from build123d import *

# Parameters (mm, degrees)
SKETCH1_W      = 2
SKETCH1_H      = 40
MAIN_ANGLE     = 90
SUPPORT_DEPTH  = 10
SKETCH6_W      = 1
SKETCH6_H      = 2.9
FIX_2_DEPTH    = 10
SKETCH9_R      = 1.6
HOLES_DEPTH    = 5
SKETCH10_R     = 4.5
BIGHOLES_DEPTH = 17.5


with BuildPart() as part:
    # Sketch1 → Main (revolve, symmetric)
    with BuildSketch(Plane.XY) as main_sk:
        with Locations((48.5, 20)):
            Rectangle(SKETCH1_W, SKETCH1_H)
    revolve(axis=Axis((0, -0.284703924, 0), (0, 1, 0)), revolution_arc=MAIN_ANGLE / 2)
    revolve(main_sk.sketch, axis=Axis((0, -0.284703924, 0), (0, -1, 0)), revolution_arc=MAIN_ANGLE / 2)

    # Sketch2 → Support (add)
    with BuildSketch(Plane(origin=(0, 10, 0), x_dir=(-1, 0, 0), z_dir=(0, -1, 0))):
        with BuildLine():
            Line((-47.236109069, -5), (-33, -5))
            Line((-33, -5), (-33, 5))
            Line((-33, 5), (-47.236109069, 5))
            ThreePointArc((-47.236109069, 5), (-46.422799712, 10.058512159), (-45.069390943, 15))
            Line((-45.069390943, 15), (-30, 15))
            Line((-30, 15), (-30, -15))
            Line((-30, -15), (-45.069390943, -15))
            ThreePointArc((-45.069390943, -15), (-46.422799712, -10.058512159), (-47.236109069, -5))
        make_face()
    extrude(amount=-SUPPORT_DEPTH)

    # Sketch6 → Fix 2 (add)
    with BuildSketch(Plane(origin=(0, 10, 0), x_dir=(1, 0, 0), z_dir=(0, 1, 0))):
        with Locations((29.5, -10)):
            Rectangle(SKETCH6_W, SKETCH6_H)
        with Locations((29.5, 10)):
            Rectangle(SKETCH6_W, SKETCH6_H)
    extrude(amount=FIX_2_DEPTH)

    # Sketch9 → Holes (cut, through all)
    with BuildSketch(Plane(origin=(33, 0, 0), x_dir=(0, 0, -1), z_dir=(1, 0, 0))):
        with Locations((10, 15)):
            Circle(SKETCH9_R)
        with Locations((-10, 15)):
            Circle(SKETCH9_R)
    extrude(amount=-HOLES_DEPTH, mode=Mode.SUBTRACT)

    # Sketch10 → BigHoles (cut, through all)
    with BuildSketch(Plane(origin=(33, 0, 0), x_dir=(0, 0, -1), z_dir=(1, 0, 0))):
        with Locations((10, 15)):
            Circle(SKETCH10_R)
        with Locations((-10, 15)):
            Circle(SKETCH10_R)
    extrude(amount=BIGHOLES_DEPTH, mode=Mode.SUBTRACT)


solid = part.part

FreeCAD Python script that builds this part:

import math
import FreeCAD as App
import Part
import Sketcher
from FreeCAD import Vector
Q = App.Units.Quantity

doc = App.newDocument("Part")
params = doc.addObject("Spreadsheet::Sheet", "Params")
for row, (alias, value) in enumerate([
    ("sketch1_width", "2 mm"),
    ("sketch1_height", "40 mm"),
    ("revolution_angle", "45 deg"),
    ("sketch2_width", "2 mm"),
    ("sketch2_height", "40 mm"),
    ("revolution2_angle", "45 deg"),
    ("sketch3_radius", "47.5 mm"),
    ("sketch3_height", "30 mm"),
    ("sketch3_height2", "10 mm"),
    ("pad1_length", "10 mm"),
    ("sketch4_width", "1 mm"),
    ("sketch4_height", "2.9 mm"),
    ("pad2_length", "10 mm"),
    ("sketch5_diameter", "3.2 mm"),
    ("sketch6_diameter", "9 mm"),
], start=1):
    params.set(f"A{row}", alias)
    params.set(f"B{row}", "=" + value)
    params.setAlias(f"B{row}", alias)

body = doc.addObject("PartDesign::Body", "Body")

# Sketch on XY plane
sketch1 = body.newObject("Sketcher::SketchObject", "Sketch")
sketch1.AttachmentSupport = (doc.getObject("XY_Plane"), [""])
sketch1.MapMode = "FlatFace"
sketch1.addGeometry(Part.LineSegment(Vector(47.5, 40, 0), Vector(47.5, 0, 0)), False)
sketch1.addGeometry(Part.LineSegment(Vector(47.5, 0, 0), Vector(49.5, 0, 0)), False)
sketch1.addGeometry(Part.LineSegment(Vector(49.5, 0, 0), Vector(49.5, 40, 0)), False)
sketch1.addGeometry(Part.LineSegment(Vector(49.5, 40, 0), Vector(47.5, 40, 0)), False)
sketch1.addConstraint(Sketcher.Constraint("Coincident", 0, 2, 1, 1))
sketch1.addConstraint(Sketcher.Constraint("Coincident", 1, 2, 2, 1))
sketch1.addConstraint(Sketcher.Constraint("Coincident", 2, 2, 3, 1))
sketch1.addConstraint(Sketcher.Constraint("Coincident", 3, 2, 0, 1))
sketch1.addConstraint(Sketcher.Constraint("Vertical", 0))
sketch1.addConstraint(Sketcher.Constraint("Horizontal", 1))
sketch1.addConstraint(Sketcher.Constraint("Vertical", 2))
sketch1.addConstraint(Sketcher.Constraint("Horizontal", 3))
sketch1.addConstraint(Sketcher.Constraint("PointOnObject", 0, 2, -1))
sketch1.addConstraint(Sketcher.Constraint("DistanceX", 1, 1, 1, 2, Q("2 mm")))
sketch1.addConstraint(Sketcher.Constraint("DistanceY", 0, 2, 0, 1, Q("40 mm")))
sketch1.addConstraint(Sketcher.Constraint("DistanceX", -1, 1, 0, 2, Q("47.5 mm")))
sketch1.setExpression("Constraints[9]", "Params.sketch1_width")
sketch1.setExpression("Constraints[10]", "Params.sketch1_height")
revolution = body.newObject("PartDesign::Revolution", "Revolution")
revolution.Profile = sketch1
revolution.ReferenceAxis = (sketch1, ["V_Axis"])
revolution.setExpression("Angle", "Params.revolution_angle")

# Sketch on XY plane
sketch2 = body.newObject("Sketcher::SketchObject", "Sketch001")
sketch2.AttachmentSupport = (doc.getObject("XY_Plane"), [""])
sketch2.MapMode = "FlatFace"
sketch2.addGeometry(Part.LineSegment(Vector(47.5, 40, 0), Vector(47.5, 0, 0)), False)
sketch2.addGeometry(Part.LineSegment(Vector(47.5, 0, 0), Vector(49.5, 0, 0)), False)
sketch2.addGeometry(Part.LineSegment(Vector(49.5, 0, 0), Vector(49.5, 40, 0)), False)
sketch2.addGeometry(Part.LineSegment(Vector(49.5, 40, 0), Vector(47.5, 40, 0)), False)
sketch2.addConstraint(Sketcher.Constraint("Coincident", 0, 2, 1, 1))
sketch2.addConstraint(Sketcher.Constraint("Coincident", 1, 2, 2, 1))
sketch2.addConstraint(Sketcher.Constraint("Coincident", 2, 2, 3, 1))
sketch2.addConstraint(Sketcher.Constraint("Coincident", 3, 2, 0, 1))
sketch2.addConstraint(Sketcher.Constraint("Vertical", 0))
sketch2.addConstraint(Sketcher.Constraint("Horizontal", 1))
sketch2.addConstraint(Sketcher.Constraint("Vertical", 2))
sketch2.addConstraint(Sketcher.Constraint("Horizontal", 3))
sketch2.addConstraint(Sketcher.Constraint("PointOnObject", 0, 2, -1))
sketch2.addConstraint(Sketcher.Constraint("DistanceX", 1, 1, 1, 2, Q("2 mm")))
sketch2.addConstraint(Sketcher.Constraint("DistanceY", 0, 2, 0, 1, Q("40 mm")))
sketch2.addConstraint(Sketcher.Constraint("DistanceX", -1, 1, 0, 2, Q("47.5 mm")))
sketch2.setExpression("Constraints[9]", "Params.sketch2_width")
sketch2.setExpression("Constraints[10]", "Params.sketch2_height")
revolution2 = body.newObject("PartDesign::Revolution", "Revolution001")
revolution2.Profile = sketch2
revolution2.ReferenceAxis = (sketch2, ["V_Axis"])
revolution2.setExpression("Angle", "Params.revolution2_angle")
revolution2.Reversed = True

# Sketch on XZ plane
sketch3 = body.newObject("Sketcher::SketchObject", "Sketch002")
sketch3.AttachmentSupport = (doc.getObject("XZ_Plane"), [""])
sketch3.MapMode = "FlatFace"
sketch3.AttachmentOffset = App.Placement(Vector(0, 0, -10), App.Rotation())
sketch3.addGeometry(Part.LineSegment(Vector(33, 5, 0), Vector(47, 5, 0)), False)
sketch3.addGeometry(Part.ArcOfCircle(Part.Circle(Vector(0, 0, 0), Vector(0, 0, 1), 48), math.radians(6.04), math.radians(18.41)), False)
sketch3.addGeometry(Part.LineSegment(Vector(45, 15, 0), Vector(30, 15, 0)), False)
sketch3.addGeometry(Part.LineSegment(Vector(30, 15, 0), Vector(30, -15, 0)), False)
sketch3.addGeometry(Part.LineSegment(Vector(30, -15, 0), Vector(45, -15, 0)), False)
sketch3.addGeometry(Part.ArcOfCircle(Part.Circle(Vector(0, 0, 0), Vector(0, 0, 1), 48), math.radians(-18.41), math.radians(-6.04)), False)
sketch3.addGeometry(Part.LineSegment(Vector(47, -5, 0), Vector(33, -5, 0)), False)
sketch3.addGeometry(Part.LineSegment(Vector(33, -5, 0), Vector(33, 5, 0)), False)
sketch3.addConstraint(Sketcher.Constraint("Coincident", 0, 2, 1, 1))
sketch3.addConstraint(Sketcher.Constraint("Coincident", 1, 2, 2, 1))
sketch3.addConstraint(Sketcher.Constraint("Coincident", 2, 2, 3, 1))
sketch3.addConstraint(Sketcher.Constraint("Coincident", 3, 2, 4, 1))
sketch3.addConstraint(Sketcher.Constraint("Coincident", 4, 2, 5, 1))
sketch3.addConstraint(Sketcher.Constraint("Coincident", 5, 2, 6, 1))
sketch3.addConstraint(Sketcher.Constraint("Coincident", 6, 2, 7, 1))
sketch3.addConstraint(Sketcher.Constraint("Coincident", 7, 2, 0, 1))
sketch3.addConstraint(Sketcher.Constraint("Horizontal", 0))
sketch3.addConstraint(Sketcher.Constraint("Horizontal", 2))
sketch3.addConstraint(Sketcher.Constraint("Vertical", 3))
sketch3.addConstraint(Sketcher.Constraint("Horizontal", 4))
sketch3.addConstraint(Sketcher.Constraint("Horizontal", 6))
sketch3.addConstraint(Sketcher.Constraint("Vertical", 7))
sketch3.addConstraint(Sketcher.Constraint("Coincident", 1, 3, -1, 1))
sketch3.addConstraint(Sketcher.Constraint("Coincident", 5, 3, -1, 1))
sketch3.addConstraint(Sketcher.Constraint("Equal", 1, 5))
sketch3.addConstraint(Sketcher.Constraint("Vertical", 1, 2, 4, 2))
sketch3.addConstraint(Sketcher.Constraint("Vertical", 0, 2, 5, 2))
sketch3.addConstraint(Sketcher.Constraint("Radius", 1, Q("47.5 mm")))
sketch3.addConstraint(Sketcher.Constraint("DistanceY", 3, 2, 3, 1, Q("30 mm")))
sketch3.addConstraint(Sketcher.Constraint("DistanceY", 7, 1, 7, 2, Q("10 mm")))
sketch3.addConstraint(Sketcher.Constraint("DistanceX", -1, 1, 2, 2, Q("30 mm")))
sketch3.addConstraint(Sketcher.Constraint("DistanceX", -1, 1, 6, 2, Q("33 mm")))
sketch3.setExpression("Constraints[19]", "Params.sketch3_radius")
sketch3.setExpression("Constraints[20]", "Params.sketch3_height")
sketch3.setExpression("Constraints[21]", "Params.sketch3_height2")
pad1 = body.newObject("PartDesign::Pad", "Pad")
pad1.Profile = sketch3
pad1.setExpression("Length", "Params.pad1_length")
pad1.Reversed = True

# Sketch on XZ plane
sketch4 = body.newObject("Sketcher::SketchObject", "Sketch003")
sketch4.AttachmentSupport = (doc.getObject("XZ_Plane"), [""])
sketch4.MapMode = "FlatFace"
sketch4.AttachmentOffset = App.Placement(Vector(0, 0, -10), App.Rotation())
sketch4.addGeometry(Part.LineSegment(Vector(29, 8.6, 0), Vector(29, 11.4, 0)), False)
sketch4.addGeometry(Part.LineSegment(Vector(29, 11.4, 0), Vector(30, 11.4, 0)), False)
sketch4.addGeometry(Part.LineSegment(Vector(30, 11.4, 0), Vector(30, 8.6, 0)), False)
sketch4.addGeometry(Part.LineSegment(Vector(30, 8.6, 0), Vector(29, 8.6, 0)), False)
sketch4.addGeometry(Part.LineSegment(Vector(29, -11.4, 0), Vector(29, -8.6, 0)), False)
sketch4.addGeometry(Part.LineSegment(Vector(29, -8.6, 0), Vector(30, -8.6, 0)), False)
sketch4.addGeometry(Part.LineSegment(Vector(30, -8.6, 0), Vector(30, -11.4, 0)), False)
sketch4.addGeometry(Part.LineSegment(Vector(30, -11.4, 0), Vector(29, -11.4, 0)), False)
sketch4.addConstraint(Sketcher.Constraint("Coincident", 0, 2, 1, 1))
sketch4.addConstraint(Sketcher.Constraint("Coincident", 1, 2, 2, 1))
sketch4.addConstraint(Sketcher.Constraint("Coincident", 2, 2, 3, 1))
sketch4.addConstraint(Sketcher.Constraint("Coincident", 3, 2, 0, 1))
sketch4.addConstraint(Sketcher.Constraint("Coincident", 4, 2, 5, 1))
sketch4.addConstraint(Sketcher.Constraint("Coincident", 5, 2, 6, 1))
sketch4.addConstraint(Sketcher.Constraint("Coincident", 6, 2, 7, 1))
sketch4.addConstraint(Sketcher.Constraint("Coincident", 7, 2, 4, 1))
sketch4.addConstraint(Sketcher.Constraint("Vertical", 0))
sketch4.addConstraint(Sketcher.Constraint("Horizontal", 1))
sketch4.addConstraint(Sketcher.Constraint("Vertical", 2))
sketch4.addConstraint(Sketcher.Constraint("Horizontal", 3))
sketch4.addConstraint(Sketcher.Constraint("Vertical", 4))
sketch4.addConstraint(Sketcher.Constraint("Horizontal", 5))
sketch4.addConstraint(Sketcher.Constraint("Vertical", 6))
sketch4.addConstraint(Sketcher.Constraint("Horizontal", 7))
sketch4.addConstraint(Sketcher.Constraint("Symmetric", 3, 2, 4, 2, -1))
sketch4.addConstraint(Sketcher.Constraint("Symmetric", 1, 2, 6, 2, -1))
sketch4.addConstraint(Sketcher.Constraint("DistanceX", 1, 1, 1, 2, Q("1 mm")))
sketch4.addConstraint(Sketcher.Constraint("DistanceY", 0, 1, 0, 2, Q("2.9 mm")))
sketch4.addConstraint(Sketcher.Constraint("DistanceX", -1, 1, 0, 2, Q("29 mm")))
sketch4.addConstraint(Sketcher.Constraint("DistanceY", 4, 2, 0, 2, Q("20 mm")))
sketch4.setExpression("Constraints[18]", "Params.sketch4_width")
sketch4.setExpression("Constraints[19]", "Params.sketch4_height")
pad2 = body.newObject("PartDesign::Pad", "Pad001")
pad2.Profile = sketch4
pad2.setExpression("Length", "Params.pad2_length")
pad2.Reversed = True

# Sketch on YZ plane
sketch5 = body.newObject("Sketcher::SketchObject", "Sketch004")
sketch5.AttachmentSupport = (doc.getObject("YZ_Plane"), [""])
sketch5.MapMode = "FlatFace"
sketch5.AttachmentOffset = App.Placement(Vector(0, 0, 33), App.Rotation())
sketch5.addGeometry(Part.Circle(Vector(15, -10, 0), Vector(0, 0, 1), 1.6), False)
sketch5.addGeometry(Part.Circle(Vector(15, 10, 0), Vector(0, 0, 1), 1.6), False)
sketch5.addConstraint(Sketcher.Constraint("Equal", 0, 1))
sketch5.addConstraint(Sketcher.Constraint("Symmetric", 0, 3, 1, 3, -1))
sketch5.addConstraint(Sketcher.Constraint("Diameter", 0, Q("3.2 mm")))
sketch5.addConstraint(Sketcher.Constraint("DistanceX", -1, 1, 0, 3, Q("15 mm")))
sketch5.addConstraint(Sketcher.Constraint("DistanceY", 0, 3, -1, 1, Q("10 mm")))
sketch5.setExpression("Constraints[2]", "Params.sketch5_diameter")
pocket1 = body.newObject("PartDesign::Pocket", "Pocket")
pocket1.Profile = sketch5
pocket1.Type = "ThroughAll"

# Sketch on YZ plane
sketch6 = body.newObject("Sketcher::SketchObject", "Sketch005")
sketch6.AttachmentSupport = (doc.getObject("YZ_Plane"), [""])
sketch6.MapMode = "FlatFace"
sketch6.AttachmentOffset = App.Placement(Vector(0, 0, 33), App.Rotation())
sketch6.addGeometry(Part.Circle(Vector(15, -10, 0), Vector(0, 0, 1), 4.5), False)
sketch6.addGeometry(Part.Circle(Vector(15, 10, 0), Vector(0, 0, 1), 4.5), False)
sketch6.addConstraint(Sketcher.Constraint("Equal", 0, 1))
sketch6.addConstraint(Sketcher.Constraint("Symmetric", 0, 3, 1, 3, -1))
sketch6.addConstraint(Sketcher.Constraint("Diameter", 0, Q("9 mm")))
sketch6.addConstraint(Sketcher.Constraint("DistanceX", -1, 1, 0, 3, Q("15 mm")))
sketch6.addConstraint(Sketcher.Constraint("DistanceY", 0, 3, -1, 1, Q("10 mm")))
sketch6.setExpression("Constraints[2]", "Params.sketch6_diameter")
pocket2 = body.newObject("PartDesign::Pocket", "Pocket001")
pocket2.Profile = sketch6
pocket2.Type = "ThroughAll"
pocket2.Reversed = True

doc.recompute()
